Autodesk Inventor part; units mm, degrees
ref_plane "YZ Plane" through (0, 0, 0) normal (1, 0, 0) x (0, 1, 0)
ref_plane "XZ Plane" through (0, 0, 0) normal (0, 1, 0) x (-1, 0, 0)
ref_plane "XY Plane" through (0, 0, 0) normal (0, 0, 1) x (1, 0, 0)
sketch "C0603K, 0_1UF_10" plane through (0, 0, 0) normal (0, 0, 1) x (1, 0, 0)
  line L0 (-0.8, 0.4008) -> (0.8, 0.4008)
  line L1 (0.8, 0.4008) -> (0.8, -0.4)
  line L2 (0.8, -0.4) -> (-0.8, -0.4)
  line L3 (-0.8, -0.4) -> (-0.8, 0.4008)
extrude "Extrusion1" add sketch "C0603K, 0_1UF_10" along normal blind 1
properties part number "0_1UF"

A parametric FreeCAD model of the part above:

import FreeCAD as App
import Part
import Sketcher
from FreeCAD import Vector
Q = App.Units.Quantity

doc = App.newDocument("Part")
body = doc.addObject("PartDesign::Body", "Body")

# Sketch on XY plane
sketch1 = body.newObject("Sketcher::SketchObject", "Sketch")
sketch1.AttachmentSupport = (doc.getObject("XY_Plane"), [""])
sketch1.MapMode = "FlatFace"
sketch1.addGeometry([
    Part.LineSegment(Vector(0.8, 0.4, 0), Vector(-0.8, 0.4, 0)),
    Part.LineSegment(Vector(-0.8, 0.4, 0), Vector(-0.8, -0.4, 0)),
    Part.LineSegment(Vector(-0.8, -0.4, 0), Vector(0.8, -0.4, 0)),
    Part.LineSegment(Vector(0.8, -0.4, 0), Vector(0.8, 0.4, 0)),
], False)
sketch1.addConstraint([
    Sketcher.Constraint("Coincident", 0, 2, 1, 1),
    Sketcher.Constraint("Coincident", 1, 2, 2, 1),
    Sketcher.Constraint("Coincident", 2, 2, 3, 1),
    Sketcher.Constraint("Coincident", 3, 2, 0, 1),
    Sketcher.Constraint("Horizontal", 0),
    Sketcher.Constraint("Vertical", 1),
    Sketcher.Constraint("Horizontal", 2),
    Sketcher.Constraint("Vertical", 3),
    Sketcher.Constraint("DistanceX", 0, 2, 0, 1, Q("1.6 mm")),
    Sketcher.Constraint("DistanceX", 0, 2, -1, 1, Q("0.8 mm")),
    Sketcher.Constraint("DistanceY", 1, 2, -1, 1, Q("0.4 mm")),
    Sketcher.Constraint("DistanceY", 1, 2, 1, 1, Q("0.8008 mm")),
])
pad1 = body.newObject("PartDesign::Pad", "Pad")
pad1.Profile = sketch1
pad1.Length = 1

doc.recompute()
